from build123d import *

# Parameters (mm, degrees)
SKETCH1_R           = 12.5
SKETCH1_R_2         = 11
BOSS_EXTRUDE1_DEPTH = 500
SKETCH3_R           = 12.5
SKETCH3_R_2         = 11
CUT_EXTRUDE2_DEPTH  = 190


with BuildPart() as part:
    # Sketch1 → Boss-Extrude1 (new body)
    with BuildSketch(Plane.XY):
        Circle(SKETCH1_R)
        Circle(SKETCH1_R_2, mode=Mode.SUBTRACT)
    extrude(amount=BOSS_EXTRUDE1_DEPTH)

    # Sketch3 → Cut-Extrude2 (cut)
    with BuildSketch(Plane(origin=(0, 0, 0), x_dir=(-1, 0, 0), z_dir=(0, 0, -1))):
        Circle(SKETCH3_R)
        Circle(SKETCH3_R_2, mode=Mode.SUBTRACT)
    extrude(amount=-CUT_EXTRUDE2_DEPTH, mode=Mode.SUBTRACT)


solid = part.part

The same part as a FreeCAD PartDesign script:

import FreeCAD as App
import Part
import Sketcher
from FreeCAD import Vector

doc = App.newDocument("Part")
body = doc.addObject("PartDesign::Body", "Body")

# Sketch on XY plane
sketch1 = doc.addObject("Sketcher::SketchObject", "Sketch")
body.addObject(sketch1)
sketch1.AttachmentSupport = (doc.XY_Plane, [""])
sketch1.MapMode = "FlatFace"
sketch1.addGeometry(Part.Circle(Vector(0, 0, 0), Vector(0, 0, 1), 12), False)
sketch1.addGeometry(Part.Circle(Vector(0, 0, 0), Vector(0, 0, 1), 11), False)
sketch1.addConstraint(Sketcher.Constraint("Coincident", 0, 3, -1, 1))
sketch1.addConstraint(Sketcher.Constraint("Coincident", 1, 3, -1, 1))
sketch1.addConstraint(Sketcher.Constraint("Diameter", 0, 25.0))
sketch1.addConstraint(Sketcher.Constraint("Diameter", 1, 22.0))
pad1 = doc.addObject("PartDesign::Pad", "Pad")
body.addObject(pad1)
pad1.Profile = sketch1
pad1.Length = 500

# Sketch on XY plane
sketch2 = doc.addObject("Sketcher::SketchObject", "Sketch001")
body.addObject(sketch2)
sketch2.AttachmentSupport = (doc.XY_Plane, [""])
sketch2.MapMode = "FlatFace"
sketch2.addGeometry(Part.Circle(Vector(0, 0, 0), Vector(0, 0, 1), 12), False)
sketch2.addGeometry(Part.Circle(Vector(0, 0, 0), Vector(0, 0, 1), 11), False)
sketch2.addConstraint(Sketcher.Constraint("Coincident", 0, 3, -1, 1))
sketch2.addConstraint(Sketcher.Constraint("Coincident", 1, 3, -1, 1))
sketch2.addConstraint(Sketcher.Constraint("Diameter", 0, 25.0))
sketch2.addConstraint(Sketcher.Constraint("Diameter", 1, 22.0))
pocket1 = doc.addObject("PartDesign::Pocket", "Pocket")
body.addObject(pocket1)
pocket1.Profile = sketch2
pocket1.Length = 190
pocket1.Reversed = True

doc.recompute()
